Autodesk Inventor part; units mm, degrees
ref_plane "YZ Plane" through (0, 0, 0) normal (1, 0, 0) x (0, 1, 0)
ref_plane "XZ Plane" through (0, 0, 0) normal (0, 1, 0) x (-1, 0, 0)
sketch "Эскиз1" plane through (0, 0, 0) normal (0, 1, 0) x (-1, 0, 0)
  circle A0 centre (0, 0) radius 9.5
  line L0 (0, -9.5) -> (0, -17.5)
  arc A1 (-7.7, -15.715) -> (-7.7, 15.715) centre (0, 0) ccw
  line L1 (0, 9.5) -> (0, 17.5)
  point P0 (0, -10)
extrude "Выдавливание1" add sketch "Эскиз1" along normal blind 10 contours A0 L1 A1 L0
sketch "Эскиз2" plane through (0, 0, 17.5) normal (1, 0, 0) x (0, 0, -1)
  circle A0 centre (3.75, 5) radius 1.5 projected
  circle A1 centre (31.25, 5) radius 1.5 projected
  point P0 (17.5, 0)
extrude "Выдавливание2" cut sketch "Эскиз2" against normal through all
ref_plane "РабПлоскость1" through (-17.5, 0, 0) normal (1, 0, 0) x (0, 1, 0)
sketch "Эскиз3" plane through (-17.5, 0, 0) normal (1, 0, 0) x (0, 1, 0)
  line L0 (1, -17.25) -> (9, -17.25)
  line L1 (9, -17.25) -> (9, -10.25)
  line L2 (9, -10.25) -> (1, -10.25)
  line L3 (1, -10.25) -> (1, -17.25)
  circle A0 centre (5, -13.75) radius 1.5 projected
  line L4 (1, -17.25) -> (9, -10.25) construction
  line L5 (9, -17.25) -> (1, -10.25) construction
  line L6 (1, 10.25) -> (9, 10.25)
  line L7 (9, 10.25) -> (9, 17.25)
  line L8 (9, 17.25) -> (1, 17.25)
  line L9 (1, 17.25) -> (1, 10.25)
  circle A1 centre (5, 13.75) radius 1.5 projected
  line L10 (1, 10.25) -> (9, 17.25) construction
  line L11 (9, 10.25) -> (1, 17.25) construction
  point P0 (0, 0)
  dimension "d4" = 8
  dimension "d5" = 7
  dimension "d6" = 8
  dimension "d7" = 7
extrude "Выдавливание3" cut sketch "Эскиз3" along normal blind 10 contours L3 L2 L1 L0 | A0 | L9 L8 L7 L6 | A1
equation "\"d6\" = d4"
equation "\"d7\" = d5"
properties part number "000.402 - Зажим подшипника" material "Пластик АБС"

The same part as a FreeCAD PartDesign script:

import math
import FreeCAD as App
import Part
import Sketcher
from FreeCAD import Vector
Q = App.Units.Quantity


def add_polygon(sketch, points):
    """Adds a closed chain of lines whose ends are joined by coincident constraints."""
    first, n = sketch.GeometryCount, len(points)
    for a, b in zip(points, points[1:] + points[:1]):
        sketch.addGeometry(Part.LineSegment(App.Vector(*a, 0), App.Vector(*b, 0)), False)
    for i in range(n):
        sketch.addConstraint(Sketcher.Constraint("Coincident", first + i, 2, first + (i + 1) % n, 1))

doc = App.newDocument("Part")
body = doc.addObject("PartDesign::Body", "Body")

# Sketch on XZ plane
sketch1 = body.newObject("Sketcher::SketchObject", "Sketch")
sketch1.AttachmentSupport = (doc.getObject("XZ_Plane"), [""])
sketch1.MapMode = "FlatFace"
sketch1.addGeometry(Part.ArcOfCircle(Part.Circle(Vector(0, 0, 0), Vector(0, 0, 1), 10), math.radians(90), math.radians(270)), False)
sketch1.addGeometry(Part.LineSegment(Vector(0, -10, 0), Vector(0, -18, 0)), False)
sketch1.addGeometry(Part.ArcOfCircle(Part.Circle(Vector(0, 0, 0), Vector(0, 0, 1), 18), math.radians(90), math.radians(270)), False)
sketch1.addGeometry(Part.LineSegment(Vector(0, 18, 0), Vector(0, 10, 0)), False)
sketch1.addConstraint(Sketcher.Constraint("Coincident", 0, 2, 1, 1))
sketch1.addConstraint(Sketcher.Constraint("Coincident", 1, 2, 2, 2))
sketch1.addConstraint(Sketcher.Constraint("Coincident", 2, 1, 3, 1))
sketch1.addConstraint(Sketcher.Constraint("Coincident", 3, 2, 0, 1))
sketch1.addConstraint(Sketcher.Constraint("Vertical", 1))
sketch1.addConstraint(Sketcher.Constraint("Vertical", 3))
sketch1.addConstraint(Sketcher.Constraint("Coincident", 0, 3, -1, 1))
sketch1.addConstraint(Sketcher.Constraint("Coincident", 2, 3, -1, 1))
sketch1.addConstraint(Sketcher.Constraint("PointOnObject", 0, 2, -2))
sketch1.addConstraint(Sketcher.Constraint("PointOnObject", 2, 1, -2))
sketch1.addConstraint(Sketcher.Constraint("Radius", 0, Q("9.5 mm")))
sketch1.addConstraint(Sketcher.Constraint("Radius", 2, Q("17.5 mm")))
pad1 = body.newObject("PartDesign::Pad", "Pad")
pad1.Profile = sketch1
pad1.Length = 10
pad1.Reversed = True

# Sketch on YZ plane
sketch2 = body.newObject("Sketcher::SketchObject", "Sketch001")
sketch2.AttachmentSupport = (doc.getObject("YZ_Plane"), [""])
sketch2.MapMode = "FlatFace"
sketch2.addGeometry(Part.Circle(Vector(5, 13.8, 0), Vector(0, 0, 1), 1.5), False)
sketch2.addGeometry(Part.Circle(Vector(5, -13.8, 0), Vector(0, 0, 1), 1.5), False)
sketch2.addConstraint(Sketcher.Constraint("Equal", 0, 1))
sketch2.addConstraint(Sketcher.Constraint("Symmetric", 0, 3, 1, 3, -1))
sketch2.addConstraint(Sketcher.Constraint("Diameter", 0, Q("3 mm")))
sketch2.addConstraint(Sketcher.Constraint("DistanceX", -1, 1, 0, 3, Q("5 mm")))
sketch2.addConstraint(Sketcher.Constraint("DistanceY", 1, 3, 0, 3, Q("27.5 mm")))
pocket1 = body.newObject("PartDesign::Pocket", "Pocket")
pocket1.Profile = sketch2
pocket1.Type = "ThroughAll"

# Sketch on YZ plane
sketch3 = body.newObject("Sketcher::SketchObject", "Sketch002")
sketch3.AttachmentSupport = (doc.getObject("YZ_Plane"), [""])
sketch3.MapMode = "FlatFace"
sketch3.AttachmentOffset = App.Placement(Vector(0, 0, -17.5), App.Rotation())
add_polygon(sketch3, [(1, -10), (1, -17), (9, -17), (9, -10)])  # lines 0-3
add_polygon(sketch3, [(1, 17), (1, 10), (9, 10), (9, 17)])  # lines 4-7
sketch3.addConstraint(Sketcher.Constraint("Vertical", 0))
sketch3.addConstraint(Sketcher.Constraint("Horizontal", 1))
sketch3.addConstraint(Sketcher.Constraint("Vertical", 2))
sketch3.addConstraint(Sketcher.Constraint("Horizontal", 3))
sketch3.addConstraint(Sketcher.Constraint("Vertical", 4))
sketch3.addConstraint(Sketcher.Constraint("Horizontal", 5))
sketch3.addConstraint(Sketcher.Constraint("Vertical", 6))
sketch3.addConstraint(Sketcher.Constraint("Horizontal", 7))
sketch3.addConstraint(Sketcher.Constraint("Symmetric", 3, 2, 4, 2, -1))
sketch3.addConstraint(Sketcher.Constraint("Symmetric", 1, 2, 6, 2, -1))
sketch3.addConstraint(Sketcher.Constraint("DistanceX", 1, 1, 1, 2, Q("8 mm")))
sketch3.addConstraint(Sketcher.Constraint("DistanceY", 0, 2, 0, 1, Q("7 mm")))
sketch3.addConstraint(Sketcher.Constraint("DistanceX", -1, 1, 0, 2, Q("1 mm")))
sketch3.addConstraint(Sketcher.Constraint("DistanceY", 3, 2, 4, 2, Q("20.5 mm")))
pocket2 = body.newObject("PartDesign::Pocket", "Pocket001")
pocket2.Profile = sketch3
pocket2.Length = 10
pocket2.Reversed = True

doc.recompute()
